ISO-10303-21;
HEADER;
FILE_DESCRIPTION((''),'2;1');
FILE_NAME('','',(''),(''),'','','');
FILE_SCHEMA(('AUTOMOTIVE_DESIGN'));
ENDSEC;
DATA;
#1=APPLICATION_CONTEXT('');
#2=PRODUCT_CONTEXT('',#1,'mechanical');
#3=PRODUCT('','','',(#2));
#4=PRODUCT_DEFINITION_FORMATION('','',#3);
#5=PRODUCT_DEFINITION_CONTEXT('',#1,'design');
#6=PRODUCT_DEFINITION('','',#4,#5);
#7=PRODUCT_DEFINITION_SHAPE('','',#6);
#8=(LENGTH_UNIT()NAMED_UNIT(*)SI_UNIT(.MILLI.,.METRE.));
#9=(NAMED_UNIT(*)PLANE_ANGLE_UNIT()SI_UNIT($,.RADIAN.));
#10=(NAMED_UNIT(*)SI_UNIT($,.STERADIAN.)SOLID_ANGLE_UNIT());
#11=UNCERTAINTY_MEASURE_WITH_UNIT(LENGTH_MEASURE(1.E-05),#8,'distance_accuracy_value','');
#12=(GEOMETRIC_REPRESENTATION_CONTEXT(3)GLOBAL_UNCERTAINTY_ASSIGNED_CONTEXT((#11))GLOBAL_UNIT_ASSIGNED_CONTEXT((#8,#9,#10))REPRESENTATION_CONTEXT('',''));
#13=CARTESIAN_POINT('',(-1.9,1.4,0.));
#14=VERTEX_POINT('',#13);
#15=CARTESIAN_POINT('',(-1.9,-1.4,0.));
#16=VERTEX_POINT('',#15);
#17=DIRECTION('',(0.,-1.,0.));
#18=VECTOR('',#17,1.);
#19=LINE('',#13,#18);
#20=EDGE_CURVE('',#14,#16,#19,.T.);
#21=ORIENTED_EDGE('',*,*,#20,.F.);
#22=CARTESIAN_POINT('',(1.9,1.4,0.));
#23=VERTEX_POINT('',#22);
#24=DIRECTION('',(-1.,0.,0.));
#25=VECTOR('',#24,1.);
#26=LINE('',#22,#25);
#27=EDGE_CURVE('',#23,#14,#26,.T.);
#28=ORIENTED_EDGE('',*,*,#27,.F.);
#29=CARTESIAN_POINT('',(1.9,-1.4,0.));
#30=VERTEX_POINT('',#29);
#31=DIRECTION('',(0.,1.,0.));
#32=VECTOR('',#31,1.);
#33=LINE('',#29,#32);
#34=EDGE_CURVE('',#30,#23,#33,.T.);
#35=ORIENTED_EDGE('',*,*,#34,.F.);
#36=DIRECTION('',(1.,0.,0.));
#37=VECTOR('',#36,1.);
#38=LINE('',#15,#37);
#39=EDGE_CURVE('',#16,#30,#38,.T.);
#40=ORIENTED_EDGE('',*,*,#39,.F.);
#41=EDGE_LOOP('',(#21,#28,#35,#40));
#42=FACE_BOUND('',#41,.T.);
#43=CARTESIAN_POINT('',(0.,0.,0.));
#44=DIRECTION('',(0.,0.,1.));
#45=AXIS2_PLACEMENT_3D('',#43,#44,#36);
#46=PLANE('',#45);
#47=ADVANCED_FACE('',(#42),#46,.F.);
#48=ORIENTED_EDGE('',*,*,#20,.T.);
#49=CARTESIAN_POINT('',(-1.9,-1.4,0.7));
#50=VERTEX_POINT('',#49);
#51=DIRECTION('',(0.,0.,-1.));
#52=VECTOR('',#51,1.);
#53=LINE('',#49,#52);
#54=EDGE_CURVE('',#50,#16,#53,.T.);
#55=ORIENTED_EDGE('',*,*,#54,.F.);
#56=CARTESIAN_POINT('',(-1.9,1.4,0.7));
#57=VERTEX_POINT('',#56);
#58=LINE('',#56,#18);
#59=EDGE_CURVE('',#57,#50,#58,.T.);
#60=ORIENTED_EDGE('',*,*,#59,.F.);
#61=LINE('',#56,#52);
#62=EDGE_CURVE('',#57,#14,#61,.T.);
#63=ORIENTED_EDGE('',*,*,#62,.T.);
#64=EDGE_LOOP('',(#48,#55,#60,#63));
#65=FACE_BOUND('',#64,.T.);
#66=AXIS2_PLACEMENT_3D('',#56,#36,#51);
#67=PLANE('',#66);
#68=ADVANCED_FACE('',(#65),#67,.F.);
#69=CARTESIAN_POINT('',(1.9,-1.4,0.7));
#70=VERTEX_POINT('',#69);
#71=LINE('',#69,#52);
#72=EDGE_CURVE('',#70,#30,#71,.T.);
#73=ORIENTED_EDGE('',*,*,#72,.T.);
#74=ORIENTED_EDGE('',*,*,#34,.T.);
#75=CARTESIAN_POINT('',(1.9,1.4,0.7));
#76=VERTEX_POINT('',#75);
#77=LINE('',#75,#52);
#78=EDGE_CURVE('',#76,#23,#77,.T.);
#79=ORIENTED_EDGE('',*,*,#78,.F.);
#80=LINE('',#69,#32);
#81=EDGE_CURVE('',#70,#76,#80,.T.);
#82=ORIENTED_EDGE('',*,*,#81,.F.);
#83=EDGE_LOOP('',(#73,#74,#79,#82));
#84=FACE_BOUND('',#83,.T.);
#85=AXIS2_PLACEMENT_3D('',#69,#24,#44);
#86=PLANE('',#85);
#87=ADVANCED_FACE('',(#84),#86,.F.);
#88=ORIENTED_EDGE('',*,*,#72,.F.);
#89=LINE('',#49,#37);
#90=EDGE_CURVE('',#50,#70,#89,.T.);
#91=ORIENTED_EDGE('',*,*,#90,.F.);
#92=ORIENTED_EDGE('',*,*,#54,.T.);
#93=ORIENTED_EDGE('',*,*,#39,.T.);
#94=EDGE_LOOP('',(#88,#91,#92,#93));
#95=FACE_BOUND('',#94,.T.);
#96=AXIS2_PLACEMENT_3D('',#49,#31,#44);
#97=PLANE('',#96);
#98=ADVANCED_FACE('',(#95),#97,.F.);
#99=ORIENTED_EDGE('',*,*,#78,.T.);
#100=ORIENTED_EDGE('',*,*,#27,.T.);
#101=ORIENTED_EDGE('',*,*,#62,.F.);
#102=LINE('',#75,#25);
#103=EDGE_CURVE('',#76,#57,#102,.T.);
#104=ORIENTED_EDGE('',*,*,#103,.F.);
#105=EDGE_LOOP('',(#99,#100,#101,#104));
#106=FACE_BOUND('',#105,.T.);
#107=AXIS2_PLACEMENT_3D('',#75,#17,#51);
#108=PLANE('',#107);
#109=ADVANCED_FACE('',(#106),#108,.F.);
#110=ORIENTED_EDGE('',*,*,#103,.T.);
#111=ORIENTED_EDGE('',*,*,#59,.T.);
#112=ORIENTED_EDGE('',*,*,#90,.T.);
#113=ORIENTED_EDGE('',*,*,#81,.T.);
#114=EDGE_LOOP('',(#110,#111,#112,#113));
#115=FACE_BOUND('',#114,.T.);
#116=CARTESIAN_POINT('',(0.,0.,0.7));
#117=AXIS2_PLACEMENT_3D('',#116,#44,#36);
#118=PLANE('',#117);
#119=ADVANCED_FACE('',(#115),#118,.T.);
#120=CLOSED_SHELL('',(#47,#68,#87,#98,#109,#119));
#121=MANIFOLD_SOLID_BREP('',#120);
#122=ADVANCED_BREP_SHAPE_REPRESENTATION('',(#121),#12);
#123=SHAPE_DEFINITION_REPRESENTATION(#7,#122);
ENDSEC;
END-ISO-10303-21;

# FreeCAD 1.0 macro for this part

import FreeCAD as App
import Part
import Sketcher

V = App.Vector
Q = App.Units.Quantity

doc = App.newDocument("Part")
body = doc.addObject("PartDesign::Body", "Body")

# Sketch on XY plane
sketch1 = body.newObject("Sketcher::SketchObject", "Sketch")
sketch1.AttachmentSupport = (doc.getObject("XY_Plane"), [""])
sketch1.MapMode = "FlatFace"
sketch1.addGeometry(Part.LineSegment(V(-1.9, 1.4, 0), V(-1.9, -1.4, 0)), False)
sketch1.addGeometry(Part.LineSegment(V(-1.9, -1.4, 0), V(1.9, -1.4, 0)), False)
sketch1.addGeometry(Part.LineSegment(V(1.9, -1.4, 0), V(1.9, 1.4, 0)), False)
sketch1.addGeometry(Part.LineSegment(V(1.9, 1.4, 0), V(-1.9, 1.4, 0)), False)
sketch1.addConstraint(Sketcher.Constraint("Coincident", 0, 2, 1, 1))
sketch1.addConstraint(Sketcher.Constraint("Coincident", 1, 2, 2, 1))
sketch1.addConstraint(Sketcher.Constraint("Coincident", 2, 2, 3, 1))
sketch1.addConstraint(Sketcher.Constraint("Coincident", 3, 2, 0, 1))
sketch1.addConstraint(Sketcher.Constraint("Vertical", 0))
sketch1.addConstraint(Sketcher.Constraint("Horizontal", 1))
sketch1.addConstraint(Sketcher.Constraint("Vertical", 2))
sketch1.addConstraint(Sketcher.Constraint("Horizontal", 3))
sketch1.addConstraint(Sketcher.Constraint("Symmetric", 0, 2, 2, 2, -1, 1))
sketch1.addConstraint(Sketcher.Constraint("DistanceX", 1, 1, 1, 2, Q("3.8 mm")))
sketch1.addConstraint(Sketcher.Constraint("DistanceY", 0, 2, 0, 1, Q("2.8 mm")))
pad1 = body.newObject("PartDesign::Pad", "Pad")
pad1.Profile = sketch1
pad1.Length = 0.7

doc.recompute()
